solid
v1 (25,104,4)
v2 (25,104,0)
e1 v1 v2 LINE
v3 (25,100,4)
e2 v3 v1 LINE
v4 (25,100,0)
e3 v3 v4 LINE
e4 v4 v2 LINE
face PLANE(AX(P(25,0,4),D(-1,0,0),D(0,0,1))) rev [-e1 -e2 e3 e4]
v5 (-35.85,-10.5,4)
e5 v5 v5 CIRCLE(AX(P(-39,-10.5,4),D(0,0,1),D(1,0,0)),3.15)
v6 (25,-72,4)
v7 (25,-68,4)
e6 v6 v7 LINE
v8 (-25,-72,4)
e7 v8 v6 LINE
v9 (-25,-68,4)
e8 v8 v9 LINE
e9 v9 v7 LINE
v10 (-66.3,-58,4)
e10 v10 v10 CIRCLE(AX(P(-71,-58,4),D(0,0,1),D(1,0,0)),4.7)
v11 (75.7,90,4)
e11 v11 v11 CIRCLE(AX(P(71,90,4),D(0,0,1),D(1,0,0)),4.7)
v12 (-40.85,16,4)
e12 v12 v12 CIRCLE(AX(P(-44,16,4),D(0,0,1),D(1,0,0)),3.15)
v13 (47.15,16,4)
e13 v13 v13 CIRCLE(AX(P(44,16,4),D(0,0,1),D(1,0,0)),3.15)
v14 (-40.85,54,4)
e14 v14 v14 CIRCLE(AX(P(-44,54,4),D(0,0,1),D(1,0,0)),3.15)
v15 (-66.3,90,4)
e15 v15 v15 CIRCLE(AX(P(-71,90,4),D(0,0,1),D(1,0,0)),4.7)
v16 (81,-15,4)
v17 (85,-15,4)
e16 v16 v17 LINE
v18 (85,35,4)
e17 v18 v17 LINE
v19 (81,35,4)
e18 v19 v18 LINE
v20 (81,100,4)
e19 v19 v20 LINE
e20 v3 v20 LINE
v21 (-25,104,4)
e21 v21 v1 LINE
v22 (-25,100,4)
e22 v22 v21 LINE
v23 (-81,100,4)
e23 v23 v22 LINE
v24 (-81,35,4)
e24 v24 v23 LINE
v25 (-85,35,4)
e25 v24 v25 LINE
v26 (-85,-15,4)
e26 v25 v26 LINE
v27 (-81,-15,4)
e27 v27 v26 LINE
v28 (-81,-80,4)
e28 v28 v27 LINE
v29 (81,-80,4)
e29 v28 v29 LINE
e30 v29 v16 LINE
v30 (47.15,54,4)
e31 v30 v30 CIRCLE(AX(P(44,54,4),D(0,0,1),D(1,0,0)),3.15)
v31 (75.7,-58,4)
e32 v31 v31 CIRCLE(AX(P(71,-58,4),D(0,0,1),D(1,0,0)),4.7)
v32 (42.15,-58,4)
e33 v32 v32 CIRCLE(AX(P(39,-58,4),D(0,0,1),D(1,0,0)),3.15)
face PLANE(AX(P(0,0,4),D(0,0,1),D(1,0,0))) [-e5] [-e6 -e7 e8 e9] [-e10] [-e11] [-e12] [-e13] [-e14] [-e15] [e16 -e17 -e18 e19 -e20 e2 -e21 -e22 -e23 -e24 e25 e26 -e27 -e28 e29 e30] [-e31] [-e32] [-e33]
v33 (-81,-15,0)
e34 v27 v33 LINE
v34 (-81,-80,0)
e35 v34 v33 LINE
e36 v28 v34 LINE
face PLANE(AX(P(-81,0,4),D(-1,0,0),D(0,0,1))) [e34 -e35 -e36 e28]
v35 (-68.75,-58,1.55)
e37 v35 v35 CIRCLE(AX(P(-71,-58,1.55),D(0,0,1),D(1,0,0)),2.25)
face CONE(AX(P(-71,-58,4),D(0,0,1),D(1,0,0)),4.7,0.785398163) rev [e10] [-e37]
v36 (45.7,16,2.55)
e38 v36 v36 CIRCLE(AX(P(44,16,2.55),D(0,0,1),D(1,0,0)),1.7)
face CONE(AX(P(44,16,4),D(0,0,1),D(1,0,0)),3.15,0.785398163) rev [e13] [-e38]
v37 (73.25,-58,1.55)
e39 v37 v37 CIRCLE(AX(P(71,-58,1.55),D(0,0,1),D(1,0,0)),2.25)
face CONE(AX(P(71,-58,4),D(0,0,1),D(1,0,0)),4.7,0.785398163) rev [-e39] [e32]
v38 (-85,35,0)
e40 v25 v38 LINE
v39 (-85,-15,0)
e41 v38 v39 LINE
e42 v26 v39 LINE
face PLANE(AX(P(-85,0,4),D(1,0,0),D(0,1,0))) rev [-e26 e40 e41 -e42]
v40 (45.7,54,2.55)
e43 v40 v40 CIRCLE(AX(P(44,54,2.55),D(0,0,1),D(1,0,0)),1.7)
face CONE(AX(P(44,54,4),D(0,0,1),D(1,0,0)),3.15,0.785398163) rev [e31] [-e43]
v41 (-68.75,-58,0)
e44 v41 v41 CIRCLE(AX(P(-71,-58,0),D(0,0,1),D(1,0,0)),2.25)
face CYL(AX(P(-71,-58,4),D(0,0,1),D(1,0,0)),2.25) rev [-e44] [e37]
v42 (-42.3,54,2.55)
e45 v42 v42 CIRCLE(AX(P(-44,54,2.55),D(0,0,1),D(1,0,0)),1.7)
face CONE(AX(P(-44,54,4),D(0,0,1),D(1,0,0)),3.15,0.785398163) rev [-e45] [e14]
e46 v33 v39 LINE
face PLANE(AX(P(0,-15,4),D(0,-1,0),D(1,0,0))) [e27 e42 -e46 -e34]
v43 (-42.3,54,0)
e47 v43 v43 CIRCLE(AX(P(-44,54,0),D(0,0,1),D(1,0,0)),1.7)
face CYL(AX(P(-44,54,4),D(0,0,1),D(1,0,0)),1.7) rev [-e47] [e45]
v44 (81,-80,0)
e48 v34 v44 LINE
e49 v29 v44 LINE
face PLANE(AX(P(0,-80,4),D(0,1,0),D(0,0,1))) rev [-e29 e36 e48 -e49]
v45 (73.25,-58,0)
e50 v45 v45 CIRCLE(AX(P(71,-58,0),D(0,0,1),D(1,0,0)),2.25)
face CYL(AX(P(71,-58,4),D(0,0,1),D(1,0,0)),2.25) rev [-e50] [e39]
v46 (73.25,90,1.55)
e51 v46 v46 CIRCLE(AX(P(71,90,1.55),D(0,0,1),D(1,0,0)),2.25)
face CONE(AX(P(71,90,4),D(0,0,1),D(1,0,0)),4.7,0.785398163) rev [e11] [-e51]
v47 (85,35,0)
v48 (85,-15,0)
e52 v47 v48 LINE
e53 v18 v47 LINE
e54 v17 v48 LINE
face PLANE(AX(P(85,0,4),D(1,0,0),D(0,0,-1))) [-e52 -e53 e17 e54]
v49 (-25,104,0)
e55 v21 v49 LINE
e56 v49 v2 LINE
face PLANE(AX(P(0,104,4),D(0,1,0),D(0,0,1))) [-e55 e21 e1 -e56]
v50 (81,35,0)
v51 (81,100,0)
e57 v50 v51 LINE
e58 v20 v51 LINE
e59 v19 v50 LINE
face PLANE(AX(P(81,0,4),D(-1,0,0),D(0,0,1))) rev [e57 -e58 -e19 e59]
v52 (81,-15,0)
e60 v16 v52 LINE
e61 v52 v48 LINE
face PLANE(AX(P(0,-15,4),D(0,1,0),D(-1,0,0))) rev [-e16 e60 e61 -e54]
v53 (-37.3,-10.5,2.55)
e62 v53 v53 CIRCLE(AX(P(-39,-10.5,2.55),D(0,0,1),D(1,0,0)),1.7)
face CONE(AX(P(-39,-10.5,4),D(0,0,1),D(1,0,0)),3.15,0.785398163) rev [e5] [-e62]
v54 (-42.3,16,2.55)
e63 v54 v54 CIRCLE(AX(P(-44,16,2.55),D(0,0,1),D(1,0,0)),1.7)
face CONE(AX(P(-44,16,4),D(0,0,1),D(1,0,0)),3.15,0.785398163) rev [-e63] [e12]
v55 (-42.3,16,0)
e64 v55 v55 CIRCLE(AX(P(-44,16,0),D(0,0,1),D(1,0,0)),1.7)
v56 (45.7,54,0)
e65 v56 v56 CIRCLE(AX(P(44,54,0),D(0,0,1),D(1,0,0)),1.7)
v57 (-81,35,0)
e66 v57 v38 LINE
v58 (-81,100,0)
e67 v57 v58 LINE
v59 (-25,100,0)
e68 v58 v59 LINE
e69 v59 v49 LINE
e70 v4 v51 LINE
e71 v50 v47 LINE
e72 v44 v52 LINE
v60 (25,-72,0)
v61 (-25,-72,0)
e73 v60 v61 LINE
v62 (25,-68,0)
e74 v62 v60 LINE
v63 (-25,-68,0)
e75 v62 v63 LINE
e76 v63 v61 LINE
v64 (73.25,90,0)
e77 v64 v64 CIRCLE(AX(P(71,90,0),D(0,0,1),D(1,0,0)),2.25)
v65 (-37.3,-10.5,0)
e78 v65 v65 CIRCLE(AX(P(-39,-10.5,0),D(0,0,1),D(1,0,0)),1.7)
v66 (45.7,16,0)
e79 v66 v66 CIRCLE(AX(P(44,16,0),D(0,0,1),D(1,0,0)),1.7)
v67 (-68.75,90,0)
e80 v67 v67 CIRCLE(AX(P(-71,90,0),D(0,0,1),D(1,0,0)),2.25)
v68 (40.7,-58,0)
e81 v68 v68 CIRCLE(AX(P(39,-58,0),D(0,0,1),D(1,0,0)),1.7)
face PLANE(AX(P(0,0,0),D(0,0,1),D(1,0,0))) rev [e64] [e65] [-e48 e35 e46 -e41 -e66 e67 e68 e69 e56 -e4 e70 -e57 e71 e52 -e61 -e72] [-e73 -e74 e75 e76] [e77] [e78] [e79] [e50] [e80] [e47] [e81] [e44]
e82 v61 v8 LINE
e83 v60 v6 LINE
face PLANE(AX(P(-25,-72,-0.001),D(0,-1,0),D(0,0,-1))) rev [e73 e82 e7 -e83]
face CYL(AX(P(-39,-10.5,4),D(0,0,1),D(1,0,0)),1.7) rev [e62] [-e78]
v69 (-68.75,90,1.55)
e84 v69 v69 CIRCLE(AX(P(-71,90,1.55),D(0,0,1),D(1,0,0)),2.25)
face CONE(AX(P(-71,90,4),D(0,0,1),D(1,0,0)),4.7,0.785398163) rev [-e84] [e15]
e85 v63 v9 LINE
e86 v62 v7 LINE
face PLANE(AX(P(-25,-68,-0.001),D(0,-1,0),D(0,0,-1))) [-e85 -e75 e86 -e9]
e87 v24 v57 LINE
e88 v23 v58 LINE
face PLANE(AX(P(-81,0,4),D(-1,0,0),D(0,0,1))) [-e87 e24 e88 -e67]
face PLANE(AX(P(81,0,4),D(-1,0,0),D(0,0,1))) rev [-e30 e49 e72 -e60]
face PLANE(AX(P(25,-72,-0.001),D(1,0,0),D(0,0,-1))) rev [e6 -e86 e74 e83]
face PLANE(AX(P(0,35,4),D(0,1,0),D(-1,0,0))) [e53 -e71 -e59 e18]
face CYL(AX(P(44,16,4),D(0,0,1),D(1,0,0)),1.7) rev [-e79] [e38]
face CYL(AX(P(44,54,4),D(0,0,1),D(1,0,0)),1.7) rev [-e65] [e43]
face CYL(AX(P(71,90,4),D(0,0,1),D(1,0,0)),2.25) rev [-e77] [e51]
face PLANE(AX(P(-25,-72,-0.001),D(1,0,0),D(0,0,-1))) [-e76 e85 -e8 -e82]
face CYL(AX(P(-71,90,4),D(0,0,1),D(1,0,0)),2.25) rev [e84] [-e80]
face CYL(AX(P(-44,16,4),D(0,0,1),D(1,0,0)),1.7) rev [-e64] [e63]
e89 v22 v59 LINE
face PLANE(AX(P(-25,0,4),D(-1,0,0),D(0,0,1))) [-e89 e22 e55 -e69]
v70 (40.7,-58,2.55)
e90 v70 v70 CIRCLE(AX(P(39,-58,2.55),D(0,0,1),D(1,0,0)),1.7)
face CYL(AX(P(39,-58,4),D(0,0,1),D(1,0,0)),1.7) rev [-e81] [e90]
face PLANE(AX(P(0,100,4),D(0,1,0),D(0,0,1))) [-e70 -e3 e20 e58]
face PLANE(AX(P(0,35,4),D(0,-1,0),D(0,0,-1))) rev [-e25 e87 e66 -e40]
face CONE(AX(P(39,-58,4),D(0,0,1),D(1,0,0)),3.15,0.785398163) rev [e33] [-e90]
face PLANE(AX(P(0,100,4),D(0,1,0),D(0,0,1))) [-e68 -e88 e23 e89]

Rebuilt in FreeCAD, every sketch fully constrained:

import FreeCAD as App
import Part
import Sketcher

V = App.Vector
Q = App.Units.Quantity

doc = App.newDocument("Part")
params = doc.addObject("Spreadsheet::Sheet", "Params")
for row, (alias, value) in enumerate([
    ("sketch1_width", "162 mm"),
    ("sketch1_width2", "4 mm"),
    ("sketch1_width3", "56 mm"),
    ("sketch1_height", "65 mm"),
    ("pad1_length", "4 mm"),
    ("sketch2_width", "50 mm"),
    ("sketch2_height", "4 mm"),
    ("sketch3_diameter", "3.4 mm"),
    ("hole_diameter", "3.4 mm"),
    ("hole_csink_diameter", "6.3 mm"),
    ("sketch4_height", "4 mm"),
    ("sketch4_width", "4.7 mm"),
    ("sketch4_width2", "2.25 mm"),
    ("groove_angle", "360 deg"),
    ("linearpattern_pitch", "142 mm"),
    ("linearpattern2_pitch", "205.104851 mm"),
    ("linearpattern3_pitch", "148 mm"),
    ("sketch5_diameter", "3.4 mm"),
    ("hole2_diameter", "3.4 mm"),
    ("hole2_csink_diameter", "6.3 mm"),
], start=1):
    params.set(f"A{row}", alias)
    params.set(f"B{row}", "=" + value)
    params.setAlias(f"B{row}", alias)

body = doc.addObject("PartDesign::Body", "Body")

# Sketch on XY plane
sketch1 = doc.addObject("Sketcher::SketchObject", "Sketch")
body.addObject(sketch1)
sketch1.AttachmentSupport = (doc.XY_Plane, [""])
sketch1.MapMode = "FlatFace"
sketch1.addGeometry(Part.LineSegment(V(-81, -15, 0), V(-81, -80, 0)), False)
sketch1.addGeometry(Part.LineSegment(V(-81, -80, 0), V(81, -80, 0)), False)
sketch1.addGeometry(Part.LineSegment(V(81, -80, 0), V(81, -15, 0)), False)
sketch1.addGeometry(Part.LineSegment(V(81, -15, 0), V(85, -15, 0)), False)
sketch1.addGeometry(Part.LineSegment(V(85, -15, 0), V(85, 35, 0)), False)
sketch1.addGeometry(Part.LineSegment(V(85, 35, 0), V(81, 35, 0)), False)
sketch1.addGeometry(Part.LineSegment(V(81, 35, 0), V(81, 100, 0)), False)
sketch1.addGeometry(Part.LineSegment(V(81, 100, 0), V(25, 100, 0)), False)
sketch1.addGeometry(Part.LineSegment(V(25, 100, 0), V(25, 104, 0)), False)
sketch1.addGeometry(Part.LineSegment(V(25, 104, 0), V(-25, 104, 0)), False)
sketch1.addGeometry(Part.LineSegment(V(-25, 104, 0), V(-25, 100, 0)), False)
sketch1.addGeometry(Part.LineSegment(V(-25, 100, 0), V(-81, 100, 0)), False)
sketch1.addGeometry(Part.LineSegment(V(-81, 100, 0), V(-81, 35, 0)), False)
sketch1.addGeometry(Part.LineSegment(V(-81, 35, 0), V(-85, 35, 0)), False)
sketch1.addGeometry(Part.LineSegment(V(-85, 35, 0), V(-85, -15, 0)), False)
sketch1.addGeometry(Part.LineSegment(V(-85, -15, 0), V(-81, -15, 0)), False)
sketch1.addConstraint(Sketcher.Constraint("Coincident", 0, 2, 1, 1))
sketch1.addConstraint(Sketcher.Constraint("Coincident", 1, 2, 2, 1))
sketch1.addConstraint(Sketcher.Constraint("Coincident", 2, 2, 3, 1))
sketch1.addConstraint(Sketcher.Constraint("Coincident", 3, 2, 4, 1))
sketch1.addConstraint(Sketcher.Constraint("Coincident", 4, 2, 5, 1))
sketch1.addConstraint(Sketcher.Constraint("Coincident", 5, 2, 6, 1))
sketch1.addConstraint(Sketcher.Constraint("Coincident", 6, 2, 7, 1))
sketch1.addConstraint(Sketcher.Constraint("Coincident", 7, 2, 8, 1))
sketch1.addConstraint(Sketcher.Constraint("Coincident", 8, 2, 9, 1))
sketch1.addConstraint(Sketcher.Constraint("Coincident", 9, 2, 10, 1))
sketch1.addConstraint(Sketcher.Constraint("Coincident", 10, 2, 11, 1))
sketch1.addConstraint(Sketcher.Constraint("Coincident", 11, 2, 12, 1))
sketch1.addConstraint(Sketcher.Constraint("Coincident", 12, 2, 13, 1))
sketch1.addConstraint(Sketcher.Constraint("Coincident", 13, 2, 14, 1))
sketch1.addConstraint(Sketcher.Constraint("Coincident", 14, 2, 15, 1))
sketch1.addConstraint(Sketcher.Constraint("Coincident", 15, 2, 0, 1))
sketch1.addConstraint(Sketcher.Constraint("Vertical", 0))
sketch1.addConstraint(Sketcher.Constraint("Horizontal", 1))
sketch1.addConstraint(Sketcher.Constraint("Vertical", 2))
sketch1.addConstraint(Sketcher.Constraint("Horizontal", 3))
sketch1.addConstraint(Sketcher.Constraint("Vertical", 4))
sketch1.addConstraint(Sketcher.Constraint("Horizontal", 5))
sketch1.addConstraint(Sketcher.Constraint("Vertical", 6))
sketch1.addConstraint(Sketcher.Constraint("Horizontal", 7))
sketch1.addConstraint(Sketcher.Constraint("Vertical", 8))
sketch1.addConstraint(Sketcher.Constraint("Horizontal", 9))
sketch1.addConstraint(Sketcher.Constraint("Vertical", 10))
sketch1.addConstraint(Sketcher.Constraint("Horizontal", 11))
sketch1.addConstraint(Sketcher.Constraint("Vertical", 12))
sketch1.addConstraint(Sketcher.Constraint("Horizontal", 13))
sketch1.addConstraint(Sketcher.Constraint("Vertical", 14))
sketch1.addConstraint(Sketcher.Constraint("Horizontal", 15))
sketch1.addConstraint(Sketcher.Constraint("Symmetric", 7, 2, 10, 2, -2))
sketch1.addConstraint(Sketcher.Constraint("Symmetric", 5, 2, 12, 2, -2))
sketch1.addConstraint(Sketcher.Constraint("Symmetric", 3, 2, 14, 2, -2))
sketch1.addConstraint(Sketcher.Constraint("Vertical", 2, 2, 5, 2))
sketch1.addConstraint(Sketcher.Constraint("Vertical", 0, 2, 11, 2))
sketch1.addConstraint(Sketcher.Constraint("Equal", 9, 4))
sketch1.addConstraint(Sketcher.Constraint("Equal", 2, 6))
sketch1.addConstraint(Sketcher.Constraint("Equal", 15, 8))
sketch1.addConstraint(Sketcher.Constraint("DistanceX", 1, 1, 1, 2, 162.0))
sketch1.addConstraint(Sketcher.Constraint("DistanceX", 3, 1, 3, 2, 4.0))
sketch1.addConstraint(Sketcher.Constraint("DistanceX", 7, 2, 7, 1, 56.0))
sketch1.addConstraint(Sketcher.Constraint("DistanceY", 0, 2, 0, 1, 65.0))
sketch1.addConstraint(Sketcher.Constraint("DistanceY", 0, 2, -1, 1, 80.0))
sketch1.setExpression("Constraints[40]", "Params.sketch1_width")
sketch1.setExpression("Constraints[41]", "Params.sketch1_width2")
sketch1.setExpression("Constraints[42]", "Params.sketch1_width3")
sketch1.setExpression("Constraints[43]", "Params.sketch1_height")
pad1 = doc.addObject("PartDesign::Pad", "Pad")
body.addObject(pad1)
pad1.Profile = sketch1
pad1.setExpression("Length", "Params.pad1_length")

# Sketch on XY plane
sketch2 = doc.addObject("Sketcher::SketchObject", "Sketch001")
body.addObject(sketch2)
sketch2.AttachmentSupport = (doc.XY_Plane, [""])
sketch2.MapMode = "FlatFace"
sketch2.AttachmentOffset = App.Placement(V(0, 0, 4), App.Rotation())
sketch2.addGeometry(Part.LineSegment(V(-25, -68, 0), V(-25, -72, 0)), False)
sketch2.addGeometry(Part.LineSegment(V(-25, -72, 0), V(25, -72, 0)), False)
sketch2.addGeometry(Part.LineSegment(V(25, -72, 0), V(25, -68, 0)), False)
sketch2.addGeometry(Part.LineSegment(V(25, -68, 0), V(-25, -68, 0)), False)
sketch2.addConstraint(Sketcher.Constraint("Coincident", 0, 2, 1, 1))
sketch2.addConstraint(Sketcher.Constraint("Coincident", 1, 2, 2, 1))
sketch2.addConstraint(Sketcher.Constraint("Coincident", 2, 2, 3, 1))
sketch2.addConstraint(Sketcher.Constraint("Coincident", 3, 2, 0, 1))
sketch2.addConstraint(Sketcher.Constraint("Vertical", 0))
sketch2.addConstraint(Sketcher.Constraint("Horizontal", 1))
sketch2.addConstraint(Sketcher.Constraint("Vertical", 2))
sketch2.addConstraint(Sketcher.Constraint("Horizontal", 3))
sketch2.addConstraint(Sketcher.Constraint("DistanceX", 1, 1, 1, 2, 50.0))
sketch2.addConstraint(Sketcher.Constraint("DistanceY", 0, 2, 0, 1, 4.0))
sketch2.addConstraint(Sketcher.Constraint("DistanceX", 0, 2, -1, 1, 25.0))
sketch2.addConstraint(Sketcher.Constraint("DistanceY", 0, 2, -1, 1, 72.0))
sketch2.setExpression("Constraints[8]", "Params.sketch2_width")
sketch2.setExpression("Constraints[9]", "Params.sketch2_height")
pocket1 = doc.addObject("PartDesign::Pocket", "Pocket")
body.addObject(pocket1)
pocket1.Profile = sketch2
pocket1.Type = "UpToFirst"

# Sketch on XY plane
sketch3 = doc.addObject("Sketcher::SketchObject", "Sketch002")
body.addObject(sketch3)
sketch3.AttachmentSupport = (doc.XY_Plane, [""])
sketch3.MapMode = "FlatFace"
sketch3.AttachmentOffset = App.Placement(V(0, 0, 4), App.Rotation())
sketch3.addGeometry(Part.Circle(V(-44, 54, 0), V(0, 0, 1), 1.7), False)
sketch3.addGeometry(Part.Circle(V(44, 54, 0), V(0, 0, 1), 1.7), False)
sketch3.addGeometry(Part.Circle(V(44, 16, 0), V(0, 0, 1), 1.7), False)
sketch3.addGeometry(Part.Circle(V(-44, 16, 0), V(0, 0, 1), 1.7), False)
sketch3.addConstraint(Sketcher.Constraint("Equal", 0, 1))
sketch3.addConstraint(Sketcher.Constraint("Equal", 1, 2))
sketch3.addConstraint(Sketcher.Constraint("Equal", 2, 3))
sketch3.addConstraint(Sketcher.Constraint("Symmetric", 0, 3, 1, 3, -2))
sketch3.addConstraint(Sketcher.Constraint("Symmetric", 2, 3, 3, 3, -2))
sketch3.addConstraint(Sketcher.Constraint("Vertical", 1, 3, 2, 3))
sketch3.addConstraint(Sketcher.Constraint("Diameter", 0, 3.4))
sketch3.addConstraint(Sketcher.Constraint("DistanceX", 0, 3, -1, 1, 44.0))
sketch3.addConstraint(Sketcher.Constraint("DistanceY", -1, 1, 0, 3, 54.0))
sketch3.addConstraint(Sketcher.Constraint("DistanceY", -1, 1, 2, 3, 16.0))
sketch3.setExpression("Constraints[6]", "Params.sketch3_diameter")
doc.recompute()
hole = doc.addObject("PartDesign::Hole", "Hole")
body.addObject(hole)
hole.Profile = sketch3
hole.ThreadType = "None"
hole.setExpression("Diameter", "Params.hole_diameter")
hole.DepthType = "ThroughAll"
hole.HoleCutType = "Countersink"
hole.setExpression("HoleCutDiameter", "Params.hole_csink_diameter")
hole.HoleCutCountersinkAngle = 90

# Sketch on YZ plane
sketch4 = doc.addObject("Sketcher::SketchObject", "Sketch003")
body.addObject(sketch4)
sketch4.AttachmentSupport = (doc.YZ_Plane, [""])
sketch4.MapMode = "FlatFace"
sketch4.AttachmentOffset = App.Placement(V(0, 0, -71), App.Rotation())
sketch4.addGeometry(Part.LineSegment(V(90, 0, 0), V(90, 4, 0)), False)
sketch4.addGeometry(Part.LineSegment(V(90, 4, 0), V(85.3, 4, 0)), False)
sketch4.addGeometry(Part.LineSegment(V(85.3, 4, 0), V(87.75, 1.55, 0)), False)
sketch4.addGeometry(Part.LineSegment(V(87.75, 1.55, 0), V(87.75, 0, 0)), False)
sketch4.addGeometry(Part.LineSegment(V(87.75, 0, 0), V(90, 0, 0)), False)
sketch4.addGeometry(Part.LineSegment(V(90, 4, 0), V(90, 0, 0)), True)  # axis
sketch4.addConstraint(Sketcher.Constraint("Coincident", 0, 2, 1, 1))
sketch4.addConstraint(Sketcher.Constraint("Coincident", 1, 2, 2, 1))
sketch4.addConstraint(Sketcher.Constraint("Coincident", 2, 2, 3, 1))
sketch4.addConstraint(Sketcher.Constraint("Coincident", 3, 2, 4, 1))
sketch4.addConstraint(Sketcher.Constraint("Coincident", 4, 2, 0, 1))
sketch4.addConstraint(Sketcher.Constraint("Vertical", 0))
sketch4.addConstraint(Sketcher.Constraint("Horizontal", 1))
sketch4.addConstraint(Sketcher.Constraint("Vertical", 3))
sketch4.addConstraint(Sketcher.Constraint("Horizontal", 4))
sketch4.addConstraint(Sketcher.Constraint("Vertical", 5))
sketch4.addConstraint(Sketcher.Constraint("Coincident", 5, 1, 0, 2))
sketch4.addConstraint(Sketcher.Constraint("PointOnObject", 3, 2, -1))
sketch4.addConstraint(Sketcher.Constraint("PointOnObject", 5, 2, -1))
sketch4.addConstraint(Sketcher.Constraint("DistanceY", 0, 1, 0, 2, 4.0))
sketch4.addConstraint(Sketcher.Constraint("Angle", 2, Q("-45 deg")))
sketch4.addConstraint(Sketcher.Constraint("DistanceX", 1, 2, 1, 1, 4.7))
sketch4.addConstraint(Sketcher.Constraint("DistanceX", -1, 1, 0, 2, 90.0))
sketch4.addConstraint(Sketcher.Constraint("DistanceX", 4, 1, 4, 2, 2.25))
sketch4.setExpression("Constraints[13]", "Params.sketch4_height")
sketch4.setExpression("Constraints[15]", "Params.sketch4_width")
sketch4.setExpression("Constraints[17]", "Params.sketch4_width2")
groove = doc.addObject("PartDesign::Groove", "Groove")
body.addObject(groove)
groove.Profile = sketch4
groove.ReferenceAxis = (sketch4, ["Axis0"])
groove.setExpression("Angle", "Params.groove_angle")
doc.recompute()

linearpattern = doc.addObject("PartDesign::LinearPattern", "LinearPattern")
body.addObject(linearpattern)
linearpattern.Originals = [groove]
linearpattern.Direction = (doc.X_Axis, [""])
linearpattern.Mode = "offset"
linearpattern.setExpression("Offset", "Params.linearpattern_pitch")
linearpattern.Occurrences = 2
body.Tip = linearpattern
doc.recompute()

datumline = doc.addObject("PartDesign::Line", "DatumLine")
body.addObject(datumline)
datumline.Placement = App.Placement(V(0, 0, 0), App.Rotation(V(0, 0, 1), V(0.692328822, -0.721582152, 0)))
linearpattern2 = doc.addObject("PartDesign::LinearPattern", "LinearPattern001")
body.addObject(linearpattern2)
linearpattern2.Originals = [groove]
linearpattern2.Direction = (datumline, [""])
linearpattern2.Mode = "offset"
linearpattern2.setExpression("Offset", "Params.linearpattern2_pitch")
linearpattern2.Occurrences = 2
body.Tip = linearpattern2
doc.recompute()

linearpattern3 = doc.addObject("PartDesign::LinearPattern", "LinearPattern002")
body.addObject(linearpattern3)
linearpattern3.Originals = [groove]
linearpattern3.Direction = (doc.Y_Axis, [""])
linearpattern3.Mode = "offset"
linearpattern3.setExpression("Offset", "Params.linearpattern3_pitch")
linearpattern3.Occurrences = 2
linearpattern3.Reversed = True
body.Tip = linearpattern3

# Sketch on XY plane
sketch5 = doc.addObject("Sketcher::SketchObject", "Sketch004")
body.addObject(sketch5)
sketch5.AttachmentSupport = (doc.XY_Plane, [""])
sketch5.MapMode = "FlatFace"
sketch5.AttachmentOffset = App.Placement(V(0, 0, 4), App.Rotation())
sketch5.addGeometry(Part.Circle(V(-39, -10.5, 0), V(0, 0, 1), 1.7), False)
sketch5.addGeometry(Part.Circle(V(39, -58, 0), V(0, 0, 1), 1.7), False)
sketch5.addConstraint(Sketcher.Constraint("Equal", 0, 1))
sketch5.addConstraint(Sketcher.Constraint("Diameter", 0, 3.4))
sketch5.addConstraint(Sketcher.Constraint("DistanceX", 0, 3, -1, 1, 39.0))
sketch5.addConstraint(Sketcher.Constraint("DistanceX", -1, 1, 1, 3, 39.0))
sketch5.addConstraint(Sketcher.Constraint("DistanceY", 1, 3, -1, 1, 58.0))
sketch5.addConstraint(Sketcher.Constraint("DistanceY", 0, 3, -1, 1, 10.5))
sketch5.setExpression("Constraints[1]", "Params.sketch5_diameter")
doc.recompute()
hole2 = doc.addObject("PartDesign::Hole", "Hole001")
body.addObject(hole2)
hole2.Profile = sketch5
hole2.ThreadType = "None"
hole2.setExpression("Diameter", "Params.hole2_diameter")
hole2.DepthType = "ThroughAll"
hole2.HoleCutType = "Countersink"
hole2.setExpression("HoleCutDiameter", "Params.hole2_csink_diameter")
hole2.HoleCutCountersinkAngle = 90

doc.recompute()
